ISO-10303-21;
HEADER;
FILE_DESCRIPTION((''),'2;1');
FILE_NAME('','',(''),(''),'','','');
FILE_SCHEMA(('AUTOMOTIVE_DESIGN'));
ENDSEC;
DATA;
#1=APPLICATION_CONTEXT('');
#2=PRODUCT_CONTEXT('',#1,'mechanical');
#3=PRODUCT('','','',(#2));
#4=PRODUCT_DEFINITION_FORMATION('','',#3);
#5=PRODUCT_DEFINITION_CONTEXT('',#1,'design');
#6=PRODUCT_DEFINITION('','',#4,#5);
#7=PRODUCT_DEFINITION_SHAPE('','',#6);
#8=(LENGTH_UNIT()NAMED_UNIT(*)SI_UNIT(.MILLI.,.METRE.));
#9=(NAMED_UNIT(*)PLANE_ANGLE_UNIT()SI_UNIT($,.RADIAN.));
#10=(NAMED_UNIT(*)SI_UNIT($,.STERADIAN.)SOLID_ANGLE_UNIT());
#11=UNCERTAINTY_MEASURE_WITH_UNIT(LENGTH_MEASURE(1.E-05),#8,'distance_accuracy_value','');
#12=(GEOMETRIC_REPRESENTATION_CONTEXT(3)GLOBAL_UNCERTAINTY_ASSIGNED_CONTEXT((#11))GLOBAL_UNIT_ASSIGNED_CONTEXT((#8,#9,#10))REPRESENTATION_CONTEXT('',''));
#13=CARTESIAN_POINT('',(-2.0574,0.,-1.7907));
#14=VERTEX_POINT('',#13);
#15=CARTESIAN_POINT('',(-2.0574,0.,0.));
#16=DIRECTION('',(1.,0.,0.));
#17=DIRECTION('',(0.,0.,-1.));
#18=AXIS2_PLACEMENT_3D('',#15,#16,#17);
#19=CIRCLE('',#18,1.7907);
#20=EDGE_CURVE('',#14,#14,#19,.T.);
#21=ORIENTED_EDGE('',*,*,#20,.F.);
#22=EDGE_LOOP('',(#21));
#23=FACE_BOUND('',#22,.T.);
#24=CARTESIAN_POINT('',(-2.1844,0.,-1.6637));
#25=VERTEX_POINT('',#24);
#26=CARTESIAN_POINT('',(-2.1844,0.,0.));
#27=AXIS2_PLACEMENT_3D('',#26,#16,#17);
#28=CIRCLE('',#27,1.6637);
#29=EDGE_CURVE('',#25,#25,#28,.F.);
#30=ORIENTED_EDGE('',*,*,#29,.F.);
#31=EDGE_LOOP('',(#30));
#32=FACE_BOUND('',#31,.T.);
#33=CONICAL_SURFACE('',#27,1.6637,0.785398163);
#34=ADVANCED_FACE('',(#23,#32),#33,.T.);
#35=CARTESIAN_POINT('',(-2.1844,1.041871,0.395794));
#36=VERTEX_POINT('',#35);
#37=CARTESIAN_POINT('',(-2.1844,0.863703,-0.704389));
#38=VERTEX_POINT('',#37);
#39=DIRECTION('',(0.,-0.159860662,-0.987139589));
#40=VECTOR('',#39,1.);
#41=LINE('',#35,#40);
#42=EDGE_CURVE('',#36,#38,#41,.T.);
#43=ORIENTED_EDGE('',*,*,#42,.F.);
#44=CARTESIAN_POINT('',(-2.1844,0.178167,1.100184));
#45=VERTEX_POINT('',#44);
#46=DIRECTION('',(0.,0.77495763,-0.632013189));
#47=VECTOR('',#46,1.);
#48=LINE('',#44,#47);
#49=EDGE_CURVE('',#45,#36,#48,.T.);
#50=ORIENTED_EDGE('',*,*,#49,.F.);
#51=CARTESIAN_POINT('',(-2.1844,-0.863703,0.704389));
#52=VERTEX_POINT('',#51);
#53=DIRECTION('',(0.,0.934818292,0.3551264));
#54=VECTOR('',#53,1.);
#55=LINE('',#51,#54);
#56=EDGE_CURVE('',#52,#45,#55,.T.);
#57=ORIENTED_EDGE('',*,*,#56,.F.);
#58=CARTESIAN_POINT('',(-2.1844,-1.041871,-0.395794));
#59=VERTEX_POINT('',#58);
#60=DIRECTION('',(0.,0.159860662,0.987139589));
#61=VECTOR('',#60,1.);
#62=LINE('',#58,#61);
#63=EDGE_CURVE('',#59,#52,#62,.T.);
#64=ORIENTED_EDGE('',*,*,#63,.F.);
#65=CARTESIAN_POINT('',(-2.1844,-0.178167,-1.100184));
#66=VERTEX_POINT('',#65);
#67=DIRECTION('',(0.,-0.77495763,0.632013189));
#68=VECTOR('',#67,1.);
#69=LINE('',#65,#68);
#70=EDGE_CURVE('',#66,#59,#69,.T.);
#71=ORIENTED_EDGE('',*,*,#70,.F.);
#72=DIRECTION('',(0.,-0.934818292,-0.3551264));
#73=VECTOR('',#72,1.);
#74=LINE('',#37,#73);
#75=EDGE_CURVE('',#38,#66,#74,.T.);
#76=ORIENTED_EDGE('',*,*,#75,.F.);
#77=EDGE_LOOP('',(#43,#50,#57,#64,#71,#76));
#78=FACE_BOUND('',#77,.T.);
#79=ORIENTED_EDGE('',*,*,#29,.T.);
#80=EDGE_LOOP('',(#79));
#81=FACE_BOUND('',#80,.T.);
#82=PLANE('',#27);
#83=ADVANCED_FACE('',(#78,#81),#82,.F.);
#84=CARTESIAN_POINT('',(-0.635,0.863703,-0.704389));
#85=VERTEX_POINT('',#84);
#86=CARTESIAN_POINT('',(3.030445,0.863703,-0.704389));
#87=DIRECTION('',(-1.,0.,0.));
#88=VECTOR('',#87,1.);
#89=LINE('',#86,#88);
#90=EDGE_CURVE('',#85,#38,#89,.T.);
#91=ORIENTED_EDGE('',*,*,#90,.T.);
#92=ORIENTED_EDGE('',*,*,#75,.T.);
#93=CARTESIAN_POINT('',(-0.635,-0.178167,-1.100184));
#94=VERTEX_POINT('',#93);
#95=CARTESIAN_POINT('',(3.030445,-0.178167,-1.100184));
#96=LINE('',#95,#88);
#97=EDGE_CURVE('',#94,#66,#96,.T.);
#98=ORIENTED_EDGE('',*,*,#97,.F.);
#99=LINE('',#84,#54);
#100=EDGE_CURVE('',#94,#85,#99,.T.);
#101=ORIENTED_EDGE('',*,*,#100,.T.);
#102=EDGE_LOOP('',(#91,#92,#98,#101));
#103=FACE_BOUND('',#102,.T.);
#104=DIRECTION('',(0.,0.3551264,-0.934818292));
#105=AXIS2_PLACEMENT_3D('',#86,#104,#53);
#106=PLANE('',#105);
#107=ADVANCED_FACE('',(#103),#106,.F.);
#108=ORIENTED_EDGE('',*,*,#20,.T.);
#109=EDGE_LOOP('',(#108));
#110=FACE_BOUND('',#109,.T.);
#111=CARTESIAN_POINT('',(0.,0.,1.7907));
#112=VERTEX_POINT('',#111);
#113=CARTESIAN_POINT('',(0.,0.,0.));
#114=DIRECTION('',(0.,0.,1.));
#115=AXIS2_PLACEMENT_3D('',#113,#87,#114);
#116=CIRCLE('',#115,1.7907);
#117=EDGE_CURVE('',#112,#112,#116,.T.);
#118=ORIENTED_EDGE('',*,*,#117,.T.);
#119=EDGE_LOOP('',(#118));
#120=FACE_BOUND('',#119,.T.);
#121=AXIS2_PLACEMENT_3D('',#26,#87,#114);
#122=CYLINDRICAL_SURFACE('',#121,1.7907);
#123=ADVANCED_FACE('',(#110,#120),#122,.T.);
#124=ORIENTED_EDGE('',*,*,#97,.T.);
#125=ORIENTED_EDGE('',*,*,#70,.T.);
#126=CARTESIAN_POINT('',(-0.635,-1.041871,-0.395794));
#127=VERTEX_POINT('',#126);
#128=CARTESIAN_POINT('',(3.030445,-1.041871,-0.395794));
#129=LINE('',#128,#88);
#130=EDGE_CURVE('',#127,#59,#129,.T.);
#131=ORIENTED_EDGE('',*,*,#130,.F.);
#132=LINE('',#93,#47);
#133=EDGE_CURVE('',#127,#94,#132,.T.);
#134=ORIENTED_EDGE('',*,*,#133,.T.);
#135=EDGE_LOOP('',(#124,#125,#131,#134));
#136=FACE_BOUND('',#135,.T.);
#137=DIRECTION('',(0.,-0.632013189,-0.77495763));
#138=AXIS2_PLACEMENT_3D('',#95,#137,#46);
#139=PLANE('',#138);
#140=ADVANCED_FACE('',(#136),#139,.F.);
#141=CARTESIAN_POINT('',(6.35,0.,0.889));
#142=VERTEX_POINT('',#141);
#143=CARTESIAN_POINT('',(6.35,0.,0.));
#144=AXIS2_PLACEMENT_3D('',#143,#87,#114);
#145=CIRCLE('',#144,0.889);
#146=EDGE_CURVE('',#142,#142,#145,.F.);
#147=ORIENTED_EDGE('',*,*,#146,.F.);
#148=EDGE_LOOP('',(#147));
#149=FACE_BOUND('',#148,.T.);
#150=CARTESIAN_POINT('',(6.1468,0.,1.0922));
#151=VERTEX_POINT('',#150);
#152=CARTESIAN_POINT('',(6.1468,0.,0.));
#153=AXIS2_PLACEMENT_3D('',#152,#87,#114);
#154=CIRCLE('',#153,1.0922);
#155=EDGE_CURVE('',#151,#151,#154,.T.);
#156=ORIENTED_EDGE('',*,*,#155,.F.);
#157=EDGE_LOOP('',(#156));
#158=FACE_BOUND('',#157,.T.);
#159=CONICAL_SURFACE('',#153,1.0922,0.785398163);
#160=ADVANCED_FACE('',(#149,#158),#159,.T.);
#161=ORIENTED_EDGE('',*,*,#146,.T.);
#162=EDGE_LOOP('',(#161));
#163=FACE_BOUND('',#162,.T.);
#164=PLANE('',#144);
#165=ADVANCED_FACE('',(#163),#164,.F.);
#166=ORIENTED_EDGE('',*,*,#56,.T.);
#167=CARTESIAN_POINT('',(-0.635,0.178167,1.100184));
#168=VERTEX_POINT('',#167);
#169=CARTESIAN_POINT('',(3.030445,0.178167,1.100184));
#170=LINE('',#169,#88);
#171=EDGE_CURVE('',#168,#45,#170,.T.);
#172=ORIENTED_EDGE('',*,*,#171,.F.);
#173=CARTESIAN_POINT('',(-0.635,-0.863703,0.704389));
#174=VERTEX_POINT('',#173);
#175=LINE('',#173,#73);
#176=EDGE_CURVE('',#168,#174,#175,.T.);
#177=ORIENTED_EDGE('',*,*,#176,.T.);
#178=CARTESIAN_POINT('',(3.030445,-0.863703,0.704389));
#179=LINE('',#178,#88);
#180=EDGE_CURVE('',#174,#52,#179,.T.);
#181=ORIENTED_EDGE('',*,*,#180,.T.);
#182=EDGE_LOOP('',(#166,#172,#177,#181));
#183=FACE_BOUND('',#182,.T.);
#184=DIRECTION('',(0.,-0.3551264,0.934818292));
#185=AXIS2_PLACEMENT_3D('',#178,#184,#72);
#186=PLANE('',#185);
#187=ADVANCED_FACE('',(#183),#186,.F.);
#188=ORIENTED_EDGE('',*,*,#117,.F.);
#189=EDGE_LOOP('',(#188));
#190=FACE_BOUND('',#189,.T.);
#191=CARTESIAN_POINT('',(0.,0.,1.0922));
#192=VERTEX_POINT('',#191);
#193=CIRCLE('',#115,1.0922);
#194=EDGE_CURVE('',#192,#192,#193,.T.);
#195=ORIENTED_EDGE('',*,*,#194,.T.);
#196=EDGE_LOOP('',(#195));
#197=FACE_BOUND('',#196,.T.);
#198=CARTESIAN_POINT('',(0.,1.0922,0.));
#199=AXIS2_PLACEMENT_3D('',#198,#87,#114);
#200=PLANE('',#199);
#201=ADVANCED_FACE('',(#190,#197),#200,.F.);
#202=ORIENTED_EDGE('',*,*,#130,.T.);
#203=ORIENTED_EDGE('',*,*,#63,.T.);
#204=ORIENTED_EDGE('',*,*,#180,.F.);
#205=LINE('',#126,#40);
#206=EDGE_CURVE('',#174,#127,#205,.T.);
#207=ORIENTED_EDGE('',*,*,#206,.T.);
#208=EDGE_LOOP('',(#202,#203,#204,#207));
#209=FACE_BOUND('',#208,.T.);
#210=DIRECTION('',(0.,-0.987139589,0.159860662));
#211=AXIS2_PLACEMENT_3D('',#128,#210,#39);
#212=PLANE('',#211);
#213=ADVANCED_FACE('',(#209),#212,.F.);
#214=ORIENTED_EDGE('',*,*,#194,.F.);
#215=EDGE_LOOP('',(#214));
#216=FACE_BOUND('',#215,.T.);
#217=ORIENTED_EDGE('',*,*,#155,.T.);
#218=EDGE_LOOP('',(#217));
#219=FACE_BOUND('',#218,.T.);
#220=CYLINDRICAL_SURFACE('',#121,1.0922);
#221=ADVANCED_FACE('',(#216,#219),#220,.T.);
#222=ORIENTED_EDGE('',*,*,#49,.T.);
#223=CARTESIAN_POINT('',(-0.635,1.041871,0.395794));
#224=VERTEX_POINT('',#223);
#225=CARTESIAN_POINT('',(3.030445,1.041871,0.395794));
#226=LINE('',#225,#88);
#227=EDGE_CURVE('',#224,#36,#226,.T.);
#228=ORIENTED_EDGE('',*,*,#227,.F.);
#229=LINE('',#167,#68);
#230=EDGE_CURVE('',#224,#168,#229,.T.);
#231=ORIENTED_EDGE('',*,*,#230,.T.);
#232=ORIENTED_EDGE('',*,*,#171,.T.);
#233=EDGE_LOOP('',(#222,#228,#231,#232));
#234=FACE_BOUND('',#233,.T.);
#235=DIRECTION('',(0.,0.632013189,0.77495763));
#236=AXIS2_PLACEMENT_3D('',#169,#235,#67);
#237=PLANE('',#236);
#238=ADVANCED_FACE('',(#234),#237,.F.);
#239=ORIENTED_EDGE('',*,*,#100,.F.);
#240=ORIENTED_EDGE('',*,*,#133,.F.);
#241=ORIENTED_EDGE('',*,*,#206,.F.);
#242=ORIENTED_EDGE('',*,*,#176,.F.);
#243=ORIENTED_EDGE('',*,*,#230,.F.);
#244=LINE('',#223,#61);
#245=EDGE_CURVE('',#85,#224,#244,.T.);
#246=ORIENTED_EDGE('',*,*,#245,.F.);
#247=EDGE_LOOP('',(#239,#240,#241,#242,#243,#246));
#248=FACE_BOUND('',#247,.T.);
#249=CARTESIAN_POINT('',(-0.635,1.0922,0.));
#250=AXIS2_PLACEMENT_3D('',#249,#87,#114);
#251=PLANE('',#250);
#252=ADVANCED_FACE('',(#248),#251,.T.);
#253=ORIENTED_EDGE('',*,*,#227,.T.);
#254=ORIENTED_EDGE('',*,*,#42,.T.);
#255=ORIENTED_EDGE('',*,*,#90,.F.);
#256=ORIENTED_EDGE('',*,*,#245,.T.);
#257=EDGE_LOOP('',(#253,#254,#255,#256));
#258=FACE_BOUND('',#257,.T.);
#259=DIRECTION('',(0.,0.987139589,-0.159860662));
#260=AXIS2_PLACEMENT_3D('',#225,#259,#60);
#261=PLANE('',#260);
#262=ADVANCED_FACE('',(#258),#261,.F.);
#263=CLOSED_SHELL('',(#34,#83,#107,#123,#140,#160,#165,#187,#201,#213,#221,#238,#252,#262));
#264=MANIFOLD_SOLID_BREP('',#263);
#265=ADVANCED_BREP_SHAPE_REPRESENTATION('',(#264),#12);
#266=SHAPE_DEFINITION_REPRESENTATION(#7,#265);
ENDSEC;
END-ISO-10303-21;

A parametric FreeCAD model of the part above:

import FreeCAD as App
import Part
import Sketcher
Q = App.Units.Quantity


def edges_at(feature, points):
    """Names of the edges that pass closest to the given points."""
    edges = feature.Shape.Edges
    near = lambda p: min(range(len(edges)), key=lambda i: edges[i].distToShape(Part.Vertex(*p))[0])
    return sorted({f"Edge{near(p) + 1}" for p in points})

doc = App.newDocument("Part")
params = doc.addObject("Spreadsheet::Sheet", "Params")
for row, (alias, value) in enumerate([
    ("sketch1_width", "0.25 in"),
    ("sketch1_width2", "0.336 in"),
    ("sketch1_height", "0.043 in"),
    ("revolution_angle", "360 deg"),
    ("chamfer_size", "0.008 in"),
    ("chamfer2_size", "0.005 in"),
    ("pocket1_length", "0.061 in"),
], start=1):
    params.set(f"A{row}", alias)
    params.set(f"B{row}", "=" + value)
    params.setAlias(f"B{row}", alias)

body = doc.addObject("PartDesign::Body", "Body")

# Sketch on XY plane
sketch1 = doc.addObject("Sketcher::SketchObject", "Sketch")
body.addObject(sketch1)
sketch1.AttachmentSupport = (doc.XY_Plane, [""])
sketch1.MapMode = "FlatFace"
sketch1.addGeometry(Part.LineSegment(App.Vector(-2.2, 0, 0), App.Vector(6.3, 0, 0)), False)
sketch1.addGeometry(Part.LineSegment(App.Vector(6.3, 0, 0), App.Vector(6.3, 1.1, 0)), False)
sketch1.addGeometry(Part.LineSegment(App.Vector(6.3, 1.1, 0), App.Vector(0, 1.1, 0)), False)
sketch1.addGeometry(Part.LineSegment(App.Vector(0, 1.1, 0), App.Vector(0, 1.8, 0)), False)
sketch1.addGeometry(Part.LineSegment(App.Vector(0, 1.8, 0), App.Vector(-2.2, 1.8, 0)), False)
sketch1.addGeometry(Part.LineSegment(App.Vector(-2.2, 1.8, 0), App.Vector(-2.2, 0, 0)), False)
sketch1.addConstraint(Sketcher.Constraint("Coincident", 0, 2, 1, 1))
sketch1.addConstraint(Sketcher.Constraint("Coincident", 1, 2, 2, 1))
sketch1.addConstraint(Sketcher.Constraint("Coincident", 2, 2, 3, 1))
sketch1.addConstraint(Sketcher.Constraint("Coincident", 3, 2, 4, 1))
sketch1.addConstraint(Sketcher.Constraint("Coincident", 4, 2, 5, 1))
sketch1.addConstraint(Sketcher.Constraint("Coincident", 5, 2, 0, 1))
sketch1.addConstraint(Sketcher.Constraint("Horizontal", 0))
sketch1.addConstraint(Sketcher.Constraint("Vertical", 1))
sketch1.addConstraint(Sketcher.Constraint("Horizontal", 2))
sketch1.addConstraint(Sketcher.Constraint("Vertical", 3))
sketch1.addConstraint(Sketcher.Constraint("Horizontal", 4))
sketch1.addConstraint(Sketcher.Constraint("Vertical", 5))
sketch1.addConstraint(Sketcher.Constraint("PointOnObject", 0, 2, -1))
sketch1.addConstraint(Sketcher.Constraint("PointOnObject", 2, 2, -2))
sketch1.addConstraint(Sketcher.Constraint("DistanceX", 2, 2, 2, 1, Q("0.25 in")))
sketch1.addConstraint(Sketcher.Constraint("DistanceX", 0, 1, 0, 2, Q("0.336 in")))
sketch1.addConstraint(Sketcher.Constraint("DistanceY", 1, 1, 1, 2, Q("0.043 in")))
sketch1.addConstraint(Sketcher.Constraint("DistanceY", 3, 1, 3, 2, Q("0.0275 in")))
sketch1.setExpression("Constraints[14]", "Params.sketch1_width")
sketch1.setExpression("Constraints[15]", "Params.sketch1_width2")
sketch1.setExpression("Constraints[16]", "Params.sketch1_height")
revolution = doc.addObject("PartDesign::Revolution", "Revolution")
body.addObject(revolution)
revolution.Profile = sketch1
revolution.ReferenceAxis = (sketch1, ["H_Axis"])
revolution.setExpression("Angle", "Params.revolution_angle")
doc.recompute()

chamfer = doc.addObject("PartDesign::Chamfer", "Chamfer")
body.addObject(chamfer)
chamfer.Base = (revolution, edges_at(revolution, [(6.35, 0, -1.092)]))
chamfer.setExpression("Size", "Params.chamfer_size")
doc.recompute()

chamfer2 = doc.addObject("PartDesign::Chamfer", "Chamfer001")
body.addObject(chamfer2)
chamfer2.Base = (chamfer, edges_at(chamfer, [(-2.184, 0, -1.791)]))
chamfer2.setExpression("Size", "Params.chamfer2_size")

# Sketch on YZ plane
sketch2 = doc.addObject("Sketcher::SketchObject", "Sketch001")
body.addObject(sketch2)
sketch2.AttachmentSupport = (doc.YZ_Plane, [""])
sketch2.MapMode = "FlatFace"
sketch2.AttachmentOffset = App.Placement(App.Vector(0, 0, -0.086 * 25.4), App.Rotation())
sketch2.addGeometry(Part.LineSegment(App.Vector(0.2, 1.1, 0), App.Vector(1, 0.4, 0)), False)
sketch2.addGeometry(Part.LineSegment(App.Vector(1, 0.4, 0), App.Vector(0.9, -0.7, 0)), False)
sketch2.addGeometry(Part.LineSegment(App.Vector(0.9, -0.7, 0), App.Vector(-0.2, -1.1, 0)), False)
sketch2.addGeometry(Part.LineSegment(App.Vector(-0.2, -1.1, 0), App.Vector(-1, -0.4, 0)), False)
sketch2.addGeometry(Part.LineSegment(App.Vector(-1, -0.4, 0), App.Vector(-0.9, 0.7, 0)), False)
sketch2.addGeometry(Part.LineSegment(App.Vector(-0.9, 0.7, 0), App.Vector(0.2, 1.1, 0)), False)
sketch2.addConstraint(Sketcher.Constraint("Coincident", 0, 2, 1, 1))
sketch2.addConstraint(Sketcher.Constraint("Coincident", 1, 2, 2, 1))
sketch2.addConstraint(Sketcher.Constraint("Coincident", 2, 2, 3, 1))
sketch2.addConstraint(Sketcher.Constraint("Coincident", 3, 2, 4, 1))
sketch2.addConstraint(Sketcher.Constraint("Coincident", 4, 2, 5, 1))
sketch2.addConstraint(Sketcher.Constraint("Coincident", 5, 2, 0, 1))
sketch2.addConstraint(Sketcher.Constraint("Symmetric", 0, 2, 3, 2, -1, 1))
sketch2.addConstraint(Sketcher.Constraint("Symmetric", 1, 2, 4, 2, -1, 1))
sketch2.addConstraint(Sketcher.Constraint("Symmetric", 2, 2, 5, 2, -1, 1))
sketch2.addConstraint(Sketcher.Constraint("Equal", 0, 1))
sketch2.addConstraint(Sketcher.Constraint("Equal", 1, 2))
sketch2.addConstraint(Sketcher.Constraint("DistanceX", -1, 1, 0, 2, 1.041871))
sketch2.addConstraint(Sketcher.Constraint("DistanceY", 1, 2, -1, 1, 0.704389))
sketch2.addConstraint(Sketcher.Constraint("DistanceX", 2, 2, 1, 2, 1.041871))
sketch2.addConstraint(Sketcher.Constraint("DistanceX", 2, 2, 0, 2, 1.220038))
pocket1 = doc.addObject("PartDesign::Pocket", "Pocket")
body.addObject(pocket1)
pocket1.Profile = sketch2
pocket1.setExpression("Length", "Params.pocket1_length")
pocket1.Reversed = True

doc.recompute()
